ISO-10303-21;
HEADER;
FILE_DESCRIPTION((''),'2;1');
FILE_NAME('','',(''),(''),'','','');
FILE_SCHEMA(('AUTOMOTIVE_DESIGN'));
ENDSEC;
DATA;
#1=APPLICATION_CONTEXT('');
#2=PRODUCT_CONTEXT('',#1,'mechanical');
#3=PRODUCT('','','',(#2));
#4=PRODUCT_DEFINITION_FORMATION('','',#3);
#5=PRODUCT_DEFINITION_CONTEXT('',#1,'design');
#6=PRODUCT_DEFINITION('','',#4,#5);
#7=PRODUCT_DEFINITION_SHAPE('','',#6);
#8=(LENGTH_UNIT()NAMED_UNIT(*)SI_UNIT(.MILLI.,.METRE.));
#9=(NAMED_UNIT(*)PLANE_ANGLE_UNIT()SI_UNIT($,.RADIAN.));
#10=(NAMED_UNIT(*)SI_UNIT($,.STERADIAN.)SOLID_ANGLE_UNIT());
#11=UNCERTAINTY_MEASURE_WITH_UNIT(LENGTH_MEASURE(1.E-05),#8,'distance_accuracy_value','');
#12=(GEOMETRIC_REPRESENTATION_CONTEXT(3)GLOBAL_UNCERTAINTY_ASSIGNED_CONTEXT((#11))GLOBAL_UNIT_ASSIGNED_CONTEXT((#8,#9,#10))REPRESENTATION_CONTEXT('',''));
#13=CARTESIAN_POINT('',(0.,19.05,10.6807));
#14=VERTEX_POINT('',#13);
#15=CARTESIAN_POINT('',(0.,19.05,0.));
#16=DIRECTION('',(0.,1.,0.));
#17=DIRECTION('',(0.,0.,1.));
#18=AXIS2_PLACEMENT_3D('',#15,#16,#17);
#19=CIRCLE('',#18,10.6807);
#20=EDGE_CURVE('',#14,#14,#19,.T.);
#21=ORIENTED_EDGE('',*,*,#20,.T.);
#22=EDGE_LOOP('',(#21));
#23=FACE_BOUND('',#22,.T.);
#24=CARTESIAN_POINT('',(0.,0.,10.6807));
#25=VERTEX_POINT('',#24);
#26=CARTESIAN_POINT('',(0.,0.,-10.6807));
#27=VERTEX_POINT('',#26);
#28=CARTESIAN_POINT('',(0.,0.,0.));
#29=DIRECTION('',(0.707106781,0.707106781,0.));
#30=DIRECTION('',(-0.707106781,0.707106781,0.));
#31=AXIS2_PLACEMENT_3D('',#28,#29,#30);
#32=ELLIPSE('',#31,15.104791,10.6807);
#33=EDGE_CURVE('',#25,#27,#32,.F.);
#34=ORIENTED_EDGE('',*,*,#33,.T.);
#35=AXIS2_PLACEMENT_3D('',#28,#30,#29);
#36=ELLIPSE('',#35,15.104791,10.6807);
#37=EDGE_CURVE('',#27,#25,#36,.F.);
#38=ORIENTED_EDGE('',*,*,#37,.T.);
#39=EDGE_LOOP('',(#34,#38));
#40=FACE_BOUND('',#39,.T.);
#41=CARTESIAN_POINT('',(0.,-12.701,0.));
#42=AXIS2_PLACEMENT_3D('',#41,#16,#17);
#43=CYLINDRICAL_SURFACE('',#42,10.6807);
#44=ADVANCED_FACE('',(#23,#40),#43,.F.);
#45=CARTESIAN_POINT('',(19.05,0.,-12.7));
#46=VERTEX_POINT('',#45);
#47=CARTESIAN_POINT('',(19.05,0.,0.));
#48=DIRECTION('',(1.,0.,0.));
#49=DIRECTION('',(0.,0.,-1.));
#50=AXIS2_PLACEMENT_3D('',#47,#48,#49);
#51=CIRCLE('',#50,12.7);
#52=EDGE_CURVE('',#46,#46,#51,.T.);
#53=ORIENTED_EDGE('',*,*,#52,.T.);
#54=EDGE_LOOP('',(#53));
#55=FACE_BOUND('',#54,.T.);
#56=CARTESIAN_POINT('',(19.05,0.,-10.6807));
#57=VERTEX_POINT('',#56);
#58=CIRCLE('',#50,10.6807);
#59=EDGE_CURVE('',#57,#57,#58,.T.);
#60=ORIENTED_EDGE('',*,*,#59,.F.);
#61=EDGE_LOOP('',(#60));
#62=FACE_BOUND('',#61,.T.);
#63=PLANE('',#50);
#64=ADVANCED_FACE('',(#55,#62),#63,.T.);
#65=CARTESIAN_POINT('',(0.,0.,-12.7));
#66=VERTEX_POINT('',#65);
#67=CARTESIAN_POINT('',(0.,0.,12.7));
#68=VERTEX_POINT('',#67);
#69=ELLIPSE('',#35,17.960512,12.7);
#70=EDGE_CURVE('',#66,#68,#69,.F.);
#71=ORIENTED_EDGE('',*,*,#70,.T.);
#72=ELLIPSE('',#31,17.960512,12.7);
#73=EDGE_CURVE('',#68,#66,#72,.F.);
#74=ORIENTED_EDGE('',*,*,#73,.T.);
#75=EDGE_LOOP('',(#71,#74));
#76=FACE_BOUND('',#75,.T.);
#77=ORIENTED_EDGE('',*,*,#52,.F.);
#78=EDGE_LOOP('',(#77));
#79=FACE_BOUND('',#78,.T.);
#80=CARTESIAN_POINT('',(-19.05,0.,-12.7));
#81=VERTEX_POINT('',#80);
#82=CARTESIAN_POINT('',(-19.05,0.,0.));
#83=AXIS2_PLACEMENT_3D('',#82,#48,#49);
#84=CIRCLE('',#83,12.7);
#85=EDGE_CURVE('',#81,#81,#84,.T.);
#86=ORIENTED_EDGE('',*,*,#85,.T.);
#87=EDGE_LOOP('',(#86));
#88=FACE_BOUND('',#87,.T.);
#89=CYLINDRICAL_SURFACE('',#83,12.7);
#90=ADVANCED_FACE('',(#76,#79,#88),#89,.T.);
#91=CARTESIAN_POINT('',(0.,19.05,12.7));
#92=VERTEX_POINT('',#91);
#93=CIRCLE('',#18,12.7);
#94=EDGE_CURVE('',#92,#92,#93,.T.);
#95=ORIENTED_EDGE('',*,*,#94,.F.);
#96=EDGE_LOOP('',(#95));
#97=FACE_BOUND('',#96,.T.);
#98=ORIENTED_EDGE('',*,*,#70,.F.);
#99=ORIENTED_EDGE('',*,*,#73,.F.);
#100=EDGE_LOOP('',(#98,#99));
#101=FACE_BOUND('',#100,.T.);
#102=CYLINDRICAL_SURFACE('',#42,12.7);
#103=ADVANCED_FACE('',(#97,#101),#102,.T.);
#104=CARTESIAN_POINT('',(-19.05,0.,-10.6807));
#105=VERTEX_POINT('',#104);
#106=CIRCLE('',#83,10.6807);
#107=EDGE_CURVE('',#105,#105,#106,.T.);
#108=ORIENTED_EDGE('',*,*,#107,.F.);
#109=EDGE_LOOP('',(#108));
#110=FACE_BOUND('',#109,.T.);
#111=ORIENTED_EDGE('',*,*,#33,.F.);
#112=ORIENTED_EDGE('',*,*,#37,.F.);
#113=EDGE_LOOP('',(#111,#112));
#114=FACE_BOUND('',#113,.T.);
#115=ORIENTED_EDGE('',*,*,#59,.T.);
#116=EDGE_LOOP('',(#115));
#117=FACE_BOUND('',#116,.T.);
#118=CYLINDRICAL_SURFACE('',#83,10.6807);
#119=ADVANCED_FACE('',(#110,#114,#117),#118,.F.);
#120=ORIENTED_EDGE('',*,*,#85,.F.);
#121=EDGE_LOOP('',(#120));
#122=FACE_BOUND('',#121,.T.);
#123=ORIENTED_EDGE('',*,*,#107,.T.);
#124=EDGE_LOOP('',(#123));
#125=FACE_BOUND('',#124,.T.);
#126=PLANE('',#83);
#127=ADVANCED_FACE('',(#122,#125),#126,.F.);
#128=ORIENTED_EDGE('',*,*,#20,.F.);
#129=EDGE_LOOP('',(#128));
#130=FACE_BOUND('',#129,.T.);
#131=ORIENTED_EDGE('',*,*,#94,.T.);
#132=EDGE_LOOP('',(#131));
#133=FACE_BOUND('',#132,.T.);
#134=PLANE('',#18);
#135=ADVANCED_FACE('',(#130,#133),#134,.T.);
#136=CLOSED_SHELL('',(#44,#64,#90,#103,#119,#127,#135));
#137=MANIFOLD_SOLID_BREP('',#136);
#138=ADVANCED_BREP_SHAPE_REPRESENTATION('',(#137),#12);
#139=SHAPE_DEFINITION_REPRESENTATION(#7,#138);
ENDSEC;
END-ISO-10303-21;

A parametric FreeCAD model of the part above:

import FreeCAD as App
import Part
import Sketcher
Q = App.Units.Quantity

doc = App.newDocument("Part")
params = doc.addObject("Spreadsheet::Sheet", "Params")
for row, (alias, value) in enumerate([
    ("sketch1_diameter", "1 in"),
    ("sketch1_diameter2", "0.841 in"),
    ("pad1_length", "1.5 in"),
    ("sketch2_diameter", "1 in"),
    ("sketch3_diameter", "0.841 in"),
    ("pocket1_length", "0.75 in"),
], start=1):
    params.set(f"A{row}", alias)
    params.set(f"B{row}", "=" + value)
    params.setAlias(f"B{row}", alias)

body = doc.addObject("PartDesign::Body", "Body")

sketch1 = body.newObject("Sketcher::SketchObject", "Sketch")
sketch1.AttachmentSupport = (doc.getObject("YZ_Plane"), [""])
sketch1.MapMode = "FlatFace"
sketch1.addGeometry([
    Part.Circle(App.Vector(0, 0, 0), App.Vector(0, 0, 1), 12.7),
    Part.Circle(App.Vector(0, 0, 0), App.Vector(0, 0, 1), 10.6807),
], False)
sketch1.addConstraint([
    Sketcher.Constraint("Coincident", 0, 3, -1, 1),
    Sketcher.Constraint("Coincident", 1, 3, -1, 1),
    Sketcher.Constraint("Diameter", 0, Q("1 in")),
    Sketcher.Constraint("Diameter", 1, Q("0.841 in")),
])
sketch1.setExpression("Constraints[2]", "Params.sketch1_diameter")
sketch1.setExpression("Constraints[3]", "Params.sketch1_diameter2")
pad1 = body.newObject("PartDesign::Pad", "Pad")
pad1.Profile = sketch1
pad1.setExpression("Length", "Params.pad1_length")
pad1.Midplane = True

sketch2 = body.newObject("Sketcher::SketchObject", "Sketch001")
sketch2.AttachmentSupport = (doc.getObject("XZ_Plane"), [""])
sketch2.MapMode = "FlatFace"
sketch2.AttachmentOffset = App.Placement(App.Vector(0, 0, -0.75 * 25.4), App.Rotation())
sketch2.addGeometry(Part.Circle(App.Vector(0, 0, 0), App.Vector(0, 0, 1), 12.7), False)
sketch2.addConstraint([
    Sketcher.Constraint("Coincident", 0, 3, -1, 1),
    Sketcher.Constraint("Diameter", 0, Q("1 in")),
])
sketch2.setExpression("Constraints[1]", "Params.sketch2_diameter")
pad2 = body.newObject("PartDesign::Pad", "Pad001")
pad2.Profile = sketch2
pad2.Type = "UpToFirst"

sketch3 = body.newObject("Sketcher::SketchObject", "Sketch002")
sketch3.AttachmentSupport = (doc.getObject("XZ_Plane"), [""])
sketch3.MapMode = "FlatFace"
sketch3.AttachmentOffset = App.Placement(App.Vector(0, 0, -0.75 * 25.4), App.Rotation())
sketch3.addGeometry(Part.Circle(App.Vector(0, 0, 0), App.Vector(0, 0, 1), 10.6807), False)
sketch3.addConstraint([
    Sketcher.Constraint("Coincident", 0, 3, -1, 1),
    Sketcher.Constraint("Diameter", 0, Q("0.841 in")),
])
sketch3.setExpression("Constraints[1]", "Params.sketch3_diameter")
pocket1 = body.newObject("PartDesign::Pocket", "Pocket")
pocket1.Profile = sketch3
pocket1.setExpression("Length", "Params.pocket1_length")
pocket1.Reversed = True

doc.recompute()
